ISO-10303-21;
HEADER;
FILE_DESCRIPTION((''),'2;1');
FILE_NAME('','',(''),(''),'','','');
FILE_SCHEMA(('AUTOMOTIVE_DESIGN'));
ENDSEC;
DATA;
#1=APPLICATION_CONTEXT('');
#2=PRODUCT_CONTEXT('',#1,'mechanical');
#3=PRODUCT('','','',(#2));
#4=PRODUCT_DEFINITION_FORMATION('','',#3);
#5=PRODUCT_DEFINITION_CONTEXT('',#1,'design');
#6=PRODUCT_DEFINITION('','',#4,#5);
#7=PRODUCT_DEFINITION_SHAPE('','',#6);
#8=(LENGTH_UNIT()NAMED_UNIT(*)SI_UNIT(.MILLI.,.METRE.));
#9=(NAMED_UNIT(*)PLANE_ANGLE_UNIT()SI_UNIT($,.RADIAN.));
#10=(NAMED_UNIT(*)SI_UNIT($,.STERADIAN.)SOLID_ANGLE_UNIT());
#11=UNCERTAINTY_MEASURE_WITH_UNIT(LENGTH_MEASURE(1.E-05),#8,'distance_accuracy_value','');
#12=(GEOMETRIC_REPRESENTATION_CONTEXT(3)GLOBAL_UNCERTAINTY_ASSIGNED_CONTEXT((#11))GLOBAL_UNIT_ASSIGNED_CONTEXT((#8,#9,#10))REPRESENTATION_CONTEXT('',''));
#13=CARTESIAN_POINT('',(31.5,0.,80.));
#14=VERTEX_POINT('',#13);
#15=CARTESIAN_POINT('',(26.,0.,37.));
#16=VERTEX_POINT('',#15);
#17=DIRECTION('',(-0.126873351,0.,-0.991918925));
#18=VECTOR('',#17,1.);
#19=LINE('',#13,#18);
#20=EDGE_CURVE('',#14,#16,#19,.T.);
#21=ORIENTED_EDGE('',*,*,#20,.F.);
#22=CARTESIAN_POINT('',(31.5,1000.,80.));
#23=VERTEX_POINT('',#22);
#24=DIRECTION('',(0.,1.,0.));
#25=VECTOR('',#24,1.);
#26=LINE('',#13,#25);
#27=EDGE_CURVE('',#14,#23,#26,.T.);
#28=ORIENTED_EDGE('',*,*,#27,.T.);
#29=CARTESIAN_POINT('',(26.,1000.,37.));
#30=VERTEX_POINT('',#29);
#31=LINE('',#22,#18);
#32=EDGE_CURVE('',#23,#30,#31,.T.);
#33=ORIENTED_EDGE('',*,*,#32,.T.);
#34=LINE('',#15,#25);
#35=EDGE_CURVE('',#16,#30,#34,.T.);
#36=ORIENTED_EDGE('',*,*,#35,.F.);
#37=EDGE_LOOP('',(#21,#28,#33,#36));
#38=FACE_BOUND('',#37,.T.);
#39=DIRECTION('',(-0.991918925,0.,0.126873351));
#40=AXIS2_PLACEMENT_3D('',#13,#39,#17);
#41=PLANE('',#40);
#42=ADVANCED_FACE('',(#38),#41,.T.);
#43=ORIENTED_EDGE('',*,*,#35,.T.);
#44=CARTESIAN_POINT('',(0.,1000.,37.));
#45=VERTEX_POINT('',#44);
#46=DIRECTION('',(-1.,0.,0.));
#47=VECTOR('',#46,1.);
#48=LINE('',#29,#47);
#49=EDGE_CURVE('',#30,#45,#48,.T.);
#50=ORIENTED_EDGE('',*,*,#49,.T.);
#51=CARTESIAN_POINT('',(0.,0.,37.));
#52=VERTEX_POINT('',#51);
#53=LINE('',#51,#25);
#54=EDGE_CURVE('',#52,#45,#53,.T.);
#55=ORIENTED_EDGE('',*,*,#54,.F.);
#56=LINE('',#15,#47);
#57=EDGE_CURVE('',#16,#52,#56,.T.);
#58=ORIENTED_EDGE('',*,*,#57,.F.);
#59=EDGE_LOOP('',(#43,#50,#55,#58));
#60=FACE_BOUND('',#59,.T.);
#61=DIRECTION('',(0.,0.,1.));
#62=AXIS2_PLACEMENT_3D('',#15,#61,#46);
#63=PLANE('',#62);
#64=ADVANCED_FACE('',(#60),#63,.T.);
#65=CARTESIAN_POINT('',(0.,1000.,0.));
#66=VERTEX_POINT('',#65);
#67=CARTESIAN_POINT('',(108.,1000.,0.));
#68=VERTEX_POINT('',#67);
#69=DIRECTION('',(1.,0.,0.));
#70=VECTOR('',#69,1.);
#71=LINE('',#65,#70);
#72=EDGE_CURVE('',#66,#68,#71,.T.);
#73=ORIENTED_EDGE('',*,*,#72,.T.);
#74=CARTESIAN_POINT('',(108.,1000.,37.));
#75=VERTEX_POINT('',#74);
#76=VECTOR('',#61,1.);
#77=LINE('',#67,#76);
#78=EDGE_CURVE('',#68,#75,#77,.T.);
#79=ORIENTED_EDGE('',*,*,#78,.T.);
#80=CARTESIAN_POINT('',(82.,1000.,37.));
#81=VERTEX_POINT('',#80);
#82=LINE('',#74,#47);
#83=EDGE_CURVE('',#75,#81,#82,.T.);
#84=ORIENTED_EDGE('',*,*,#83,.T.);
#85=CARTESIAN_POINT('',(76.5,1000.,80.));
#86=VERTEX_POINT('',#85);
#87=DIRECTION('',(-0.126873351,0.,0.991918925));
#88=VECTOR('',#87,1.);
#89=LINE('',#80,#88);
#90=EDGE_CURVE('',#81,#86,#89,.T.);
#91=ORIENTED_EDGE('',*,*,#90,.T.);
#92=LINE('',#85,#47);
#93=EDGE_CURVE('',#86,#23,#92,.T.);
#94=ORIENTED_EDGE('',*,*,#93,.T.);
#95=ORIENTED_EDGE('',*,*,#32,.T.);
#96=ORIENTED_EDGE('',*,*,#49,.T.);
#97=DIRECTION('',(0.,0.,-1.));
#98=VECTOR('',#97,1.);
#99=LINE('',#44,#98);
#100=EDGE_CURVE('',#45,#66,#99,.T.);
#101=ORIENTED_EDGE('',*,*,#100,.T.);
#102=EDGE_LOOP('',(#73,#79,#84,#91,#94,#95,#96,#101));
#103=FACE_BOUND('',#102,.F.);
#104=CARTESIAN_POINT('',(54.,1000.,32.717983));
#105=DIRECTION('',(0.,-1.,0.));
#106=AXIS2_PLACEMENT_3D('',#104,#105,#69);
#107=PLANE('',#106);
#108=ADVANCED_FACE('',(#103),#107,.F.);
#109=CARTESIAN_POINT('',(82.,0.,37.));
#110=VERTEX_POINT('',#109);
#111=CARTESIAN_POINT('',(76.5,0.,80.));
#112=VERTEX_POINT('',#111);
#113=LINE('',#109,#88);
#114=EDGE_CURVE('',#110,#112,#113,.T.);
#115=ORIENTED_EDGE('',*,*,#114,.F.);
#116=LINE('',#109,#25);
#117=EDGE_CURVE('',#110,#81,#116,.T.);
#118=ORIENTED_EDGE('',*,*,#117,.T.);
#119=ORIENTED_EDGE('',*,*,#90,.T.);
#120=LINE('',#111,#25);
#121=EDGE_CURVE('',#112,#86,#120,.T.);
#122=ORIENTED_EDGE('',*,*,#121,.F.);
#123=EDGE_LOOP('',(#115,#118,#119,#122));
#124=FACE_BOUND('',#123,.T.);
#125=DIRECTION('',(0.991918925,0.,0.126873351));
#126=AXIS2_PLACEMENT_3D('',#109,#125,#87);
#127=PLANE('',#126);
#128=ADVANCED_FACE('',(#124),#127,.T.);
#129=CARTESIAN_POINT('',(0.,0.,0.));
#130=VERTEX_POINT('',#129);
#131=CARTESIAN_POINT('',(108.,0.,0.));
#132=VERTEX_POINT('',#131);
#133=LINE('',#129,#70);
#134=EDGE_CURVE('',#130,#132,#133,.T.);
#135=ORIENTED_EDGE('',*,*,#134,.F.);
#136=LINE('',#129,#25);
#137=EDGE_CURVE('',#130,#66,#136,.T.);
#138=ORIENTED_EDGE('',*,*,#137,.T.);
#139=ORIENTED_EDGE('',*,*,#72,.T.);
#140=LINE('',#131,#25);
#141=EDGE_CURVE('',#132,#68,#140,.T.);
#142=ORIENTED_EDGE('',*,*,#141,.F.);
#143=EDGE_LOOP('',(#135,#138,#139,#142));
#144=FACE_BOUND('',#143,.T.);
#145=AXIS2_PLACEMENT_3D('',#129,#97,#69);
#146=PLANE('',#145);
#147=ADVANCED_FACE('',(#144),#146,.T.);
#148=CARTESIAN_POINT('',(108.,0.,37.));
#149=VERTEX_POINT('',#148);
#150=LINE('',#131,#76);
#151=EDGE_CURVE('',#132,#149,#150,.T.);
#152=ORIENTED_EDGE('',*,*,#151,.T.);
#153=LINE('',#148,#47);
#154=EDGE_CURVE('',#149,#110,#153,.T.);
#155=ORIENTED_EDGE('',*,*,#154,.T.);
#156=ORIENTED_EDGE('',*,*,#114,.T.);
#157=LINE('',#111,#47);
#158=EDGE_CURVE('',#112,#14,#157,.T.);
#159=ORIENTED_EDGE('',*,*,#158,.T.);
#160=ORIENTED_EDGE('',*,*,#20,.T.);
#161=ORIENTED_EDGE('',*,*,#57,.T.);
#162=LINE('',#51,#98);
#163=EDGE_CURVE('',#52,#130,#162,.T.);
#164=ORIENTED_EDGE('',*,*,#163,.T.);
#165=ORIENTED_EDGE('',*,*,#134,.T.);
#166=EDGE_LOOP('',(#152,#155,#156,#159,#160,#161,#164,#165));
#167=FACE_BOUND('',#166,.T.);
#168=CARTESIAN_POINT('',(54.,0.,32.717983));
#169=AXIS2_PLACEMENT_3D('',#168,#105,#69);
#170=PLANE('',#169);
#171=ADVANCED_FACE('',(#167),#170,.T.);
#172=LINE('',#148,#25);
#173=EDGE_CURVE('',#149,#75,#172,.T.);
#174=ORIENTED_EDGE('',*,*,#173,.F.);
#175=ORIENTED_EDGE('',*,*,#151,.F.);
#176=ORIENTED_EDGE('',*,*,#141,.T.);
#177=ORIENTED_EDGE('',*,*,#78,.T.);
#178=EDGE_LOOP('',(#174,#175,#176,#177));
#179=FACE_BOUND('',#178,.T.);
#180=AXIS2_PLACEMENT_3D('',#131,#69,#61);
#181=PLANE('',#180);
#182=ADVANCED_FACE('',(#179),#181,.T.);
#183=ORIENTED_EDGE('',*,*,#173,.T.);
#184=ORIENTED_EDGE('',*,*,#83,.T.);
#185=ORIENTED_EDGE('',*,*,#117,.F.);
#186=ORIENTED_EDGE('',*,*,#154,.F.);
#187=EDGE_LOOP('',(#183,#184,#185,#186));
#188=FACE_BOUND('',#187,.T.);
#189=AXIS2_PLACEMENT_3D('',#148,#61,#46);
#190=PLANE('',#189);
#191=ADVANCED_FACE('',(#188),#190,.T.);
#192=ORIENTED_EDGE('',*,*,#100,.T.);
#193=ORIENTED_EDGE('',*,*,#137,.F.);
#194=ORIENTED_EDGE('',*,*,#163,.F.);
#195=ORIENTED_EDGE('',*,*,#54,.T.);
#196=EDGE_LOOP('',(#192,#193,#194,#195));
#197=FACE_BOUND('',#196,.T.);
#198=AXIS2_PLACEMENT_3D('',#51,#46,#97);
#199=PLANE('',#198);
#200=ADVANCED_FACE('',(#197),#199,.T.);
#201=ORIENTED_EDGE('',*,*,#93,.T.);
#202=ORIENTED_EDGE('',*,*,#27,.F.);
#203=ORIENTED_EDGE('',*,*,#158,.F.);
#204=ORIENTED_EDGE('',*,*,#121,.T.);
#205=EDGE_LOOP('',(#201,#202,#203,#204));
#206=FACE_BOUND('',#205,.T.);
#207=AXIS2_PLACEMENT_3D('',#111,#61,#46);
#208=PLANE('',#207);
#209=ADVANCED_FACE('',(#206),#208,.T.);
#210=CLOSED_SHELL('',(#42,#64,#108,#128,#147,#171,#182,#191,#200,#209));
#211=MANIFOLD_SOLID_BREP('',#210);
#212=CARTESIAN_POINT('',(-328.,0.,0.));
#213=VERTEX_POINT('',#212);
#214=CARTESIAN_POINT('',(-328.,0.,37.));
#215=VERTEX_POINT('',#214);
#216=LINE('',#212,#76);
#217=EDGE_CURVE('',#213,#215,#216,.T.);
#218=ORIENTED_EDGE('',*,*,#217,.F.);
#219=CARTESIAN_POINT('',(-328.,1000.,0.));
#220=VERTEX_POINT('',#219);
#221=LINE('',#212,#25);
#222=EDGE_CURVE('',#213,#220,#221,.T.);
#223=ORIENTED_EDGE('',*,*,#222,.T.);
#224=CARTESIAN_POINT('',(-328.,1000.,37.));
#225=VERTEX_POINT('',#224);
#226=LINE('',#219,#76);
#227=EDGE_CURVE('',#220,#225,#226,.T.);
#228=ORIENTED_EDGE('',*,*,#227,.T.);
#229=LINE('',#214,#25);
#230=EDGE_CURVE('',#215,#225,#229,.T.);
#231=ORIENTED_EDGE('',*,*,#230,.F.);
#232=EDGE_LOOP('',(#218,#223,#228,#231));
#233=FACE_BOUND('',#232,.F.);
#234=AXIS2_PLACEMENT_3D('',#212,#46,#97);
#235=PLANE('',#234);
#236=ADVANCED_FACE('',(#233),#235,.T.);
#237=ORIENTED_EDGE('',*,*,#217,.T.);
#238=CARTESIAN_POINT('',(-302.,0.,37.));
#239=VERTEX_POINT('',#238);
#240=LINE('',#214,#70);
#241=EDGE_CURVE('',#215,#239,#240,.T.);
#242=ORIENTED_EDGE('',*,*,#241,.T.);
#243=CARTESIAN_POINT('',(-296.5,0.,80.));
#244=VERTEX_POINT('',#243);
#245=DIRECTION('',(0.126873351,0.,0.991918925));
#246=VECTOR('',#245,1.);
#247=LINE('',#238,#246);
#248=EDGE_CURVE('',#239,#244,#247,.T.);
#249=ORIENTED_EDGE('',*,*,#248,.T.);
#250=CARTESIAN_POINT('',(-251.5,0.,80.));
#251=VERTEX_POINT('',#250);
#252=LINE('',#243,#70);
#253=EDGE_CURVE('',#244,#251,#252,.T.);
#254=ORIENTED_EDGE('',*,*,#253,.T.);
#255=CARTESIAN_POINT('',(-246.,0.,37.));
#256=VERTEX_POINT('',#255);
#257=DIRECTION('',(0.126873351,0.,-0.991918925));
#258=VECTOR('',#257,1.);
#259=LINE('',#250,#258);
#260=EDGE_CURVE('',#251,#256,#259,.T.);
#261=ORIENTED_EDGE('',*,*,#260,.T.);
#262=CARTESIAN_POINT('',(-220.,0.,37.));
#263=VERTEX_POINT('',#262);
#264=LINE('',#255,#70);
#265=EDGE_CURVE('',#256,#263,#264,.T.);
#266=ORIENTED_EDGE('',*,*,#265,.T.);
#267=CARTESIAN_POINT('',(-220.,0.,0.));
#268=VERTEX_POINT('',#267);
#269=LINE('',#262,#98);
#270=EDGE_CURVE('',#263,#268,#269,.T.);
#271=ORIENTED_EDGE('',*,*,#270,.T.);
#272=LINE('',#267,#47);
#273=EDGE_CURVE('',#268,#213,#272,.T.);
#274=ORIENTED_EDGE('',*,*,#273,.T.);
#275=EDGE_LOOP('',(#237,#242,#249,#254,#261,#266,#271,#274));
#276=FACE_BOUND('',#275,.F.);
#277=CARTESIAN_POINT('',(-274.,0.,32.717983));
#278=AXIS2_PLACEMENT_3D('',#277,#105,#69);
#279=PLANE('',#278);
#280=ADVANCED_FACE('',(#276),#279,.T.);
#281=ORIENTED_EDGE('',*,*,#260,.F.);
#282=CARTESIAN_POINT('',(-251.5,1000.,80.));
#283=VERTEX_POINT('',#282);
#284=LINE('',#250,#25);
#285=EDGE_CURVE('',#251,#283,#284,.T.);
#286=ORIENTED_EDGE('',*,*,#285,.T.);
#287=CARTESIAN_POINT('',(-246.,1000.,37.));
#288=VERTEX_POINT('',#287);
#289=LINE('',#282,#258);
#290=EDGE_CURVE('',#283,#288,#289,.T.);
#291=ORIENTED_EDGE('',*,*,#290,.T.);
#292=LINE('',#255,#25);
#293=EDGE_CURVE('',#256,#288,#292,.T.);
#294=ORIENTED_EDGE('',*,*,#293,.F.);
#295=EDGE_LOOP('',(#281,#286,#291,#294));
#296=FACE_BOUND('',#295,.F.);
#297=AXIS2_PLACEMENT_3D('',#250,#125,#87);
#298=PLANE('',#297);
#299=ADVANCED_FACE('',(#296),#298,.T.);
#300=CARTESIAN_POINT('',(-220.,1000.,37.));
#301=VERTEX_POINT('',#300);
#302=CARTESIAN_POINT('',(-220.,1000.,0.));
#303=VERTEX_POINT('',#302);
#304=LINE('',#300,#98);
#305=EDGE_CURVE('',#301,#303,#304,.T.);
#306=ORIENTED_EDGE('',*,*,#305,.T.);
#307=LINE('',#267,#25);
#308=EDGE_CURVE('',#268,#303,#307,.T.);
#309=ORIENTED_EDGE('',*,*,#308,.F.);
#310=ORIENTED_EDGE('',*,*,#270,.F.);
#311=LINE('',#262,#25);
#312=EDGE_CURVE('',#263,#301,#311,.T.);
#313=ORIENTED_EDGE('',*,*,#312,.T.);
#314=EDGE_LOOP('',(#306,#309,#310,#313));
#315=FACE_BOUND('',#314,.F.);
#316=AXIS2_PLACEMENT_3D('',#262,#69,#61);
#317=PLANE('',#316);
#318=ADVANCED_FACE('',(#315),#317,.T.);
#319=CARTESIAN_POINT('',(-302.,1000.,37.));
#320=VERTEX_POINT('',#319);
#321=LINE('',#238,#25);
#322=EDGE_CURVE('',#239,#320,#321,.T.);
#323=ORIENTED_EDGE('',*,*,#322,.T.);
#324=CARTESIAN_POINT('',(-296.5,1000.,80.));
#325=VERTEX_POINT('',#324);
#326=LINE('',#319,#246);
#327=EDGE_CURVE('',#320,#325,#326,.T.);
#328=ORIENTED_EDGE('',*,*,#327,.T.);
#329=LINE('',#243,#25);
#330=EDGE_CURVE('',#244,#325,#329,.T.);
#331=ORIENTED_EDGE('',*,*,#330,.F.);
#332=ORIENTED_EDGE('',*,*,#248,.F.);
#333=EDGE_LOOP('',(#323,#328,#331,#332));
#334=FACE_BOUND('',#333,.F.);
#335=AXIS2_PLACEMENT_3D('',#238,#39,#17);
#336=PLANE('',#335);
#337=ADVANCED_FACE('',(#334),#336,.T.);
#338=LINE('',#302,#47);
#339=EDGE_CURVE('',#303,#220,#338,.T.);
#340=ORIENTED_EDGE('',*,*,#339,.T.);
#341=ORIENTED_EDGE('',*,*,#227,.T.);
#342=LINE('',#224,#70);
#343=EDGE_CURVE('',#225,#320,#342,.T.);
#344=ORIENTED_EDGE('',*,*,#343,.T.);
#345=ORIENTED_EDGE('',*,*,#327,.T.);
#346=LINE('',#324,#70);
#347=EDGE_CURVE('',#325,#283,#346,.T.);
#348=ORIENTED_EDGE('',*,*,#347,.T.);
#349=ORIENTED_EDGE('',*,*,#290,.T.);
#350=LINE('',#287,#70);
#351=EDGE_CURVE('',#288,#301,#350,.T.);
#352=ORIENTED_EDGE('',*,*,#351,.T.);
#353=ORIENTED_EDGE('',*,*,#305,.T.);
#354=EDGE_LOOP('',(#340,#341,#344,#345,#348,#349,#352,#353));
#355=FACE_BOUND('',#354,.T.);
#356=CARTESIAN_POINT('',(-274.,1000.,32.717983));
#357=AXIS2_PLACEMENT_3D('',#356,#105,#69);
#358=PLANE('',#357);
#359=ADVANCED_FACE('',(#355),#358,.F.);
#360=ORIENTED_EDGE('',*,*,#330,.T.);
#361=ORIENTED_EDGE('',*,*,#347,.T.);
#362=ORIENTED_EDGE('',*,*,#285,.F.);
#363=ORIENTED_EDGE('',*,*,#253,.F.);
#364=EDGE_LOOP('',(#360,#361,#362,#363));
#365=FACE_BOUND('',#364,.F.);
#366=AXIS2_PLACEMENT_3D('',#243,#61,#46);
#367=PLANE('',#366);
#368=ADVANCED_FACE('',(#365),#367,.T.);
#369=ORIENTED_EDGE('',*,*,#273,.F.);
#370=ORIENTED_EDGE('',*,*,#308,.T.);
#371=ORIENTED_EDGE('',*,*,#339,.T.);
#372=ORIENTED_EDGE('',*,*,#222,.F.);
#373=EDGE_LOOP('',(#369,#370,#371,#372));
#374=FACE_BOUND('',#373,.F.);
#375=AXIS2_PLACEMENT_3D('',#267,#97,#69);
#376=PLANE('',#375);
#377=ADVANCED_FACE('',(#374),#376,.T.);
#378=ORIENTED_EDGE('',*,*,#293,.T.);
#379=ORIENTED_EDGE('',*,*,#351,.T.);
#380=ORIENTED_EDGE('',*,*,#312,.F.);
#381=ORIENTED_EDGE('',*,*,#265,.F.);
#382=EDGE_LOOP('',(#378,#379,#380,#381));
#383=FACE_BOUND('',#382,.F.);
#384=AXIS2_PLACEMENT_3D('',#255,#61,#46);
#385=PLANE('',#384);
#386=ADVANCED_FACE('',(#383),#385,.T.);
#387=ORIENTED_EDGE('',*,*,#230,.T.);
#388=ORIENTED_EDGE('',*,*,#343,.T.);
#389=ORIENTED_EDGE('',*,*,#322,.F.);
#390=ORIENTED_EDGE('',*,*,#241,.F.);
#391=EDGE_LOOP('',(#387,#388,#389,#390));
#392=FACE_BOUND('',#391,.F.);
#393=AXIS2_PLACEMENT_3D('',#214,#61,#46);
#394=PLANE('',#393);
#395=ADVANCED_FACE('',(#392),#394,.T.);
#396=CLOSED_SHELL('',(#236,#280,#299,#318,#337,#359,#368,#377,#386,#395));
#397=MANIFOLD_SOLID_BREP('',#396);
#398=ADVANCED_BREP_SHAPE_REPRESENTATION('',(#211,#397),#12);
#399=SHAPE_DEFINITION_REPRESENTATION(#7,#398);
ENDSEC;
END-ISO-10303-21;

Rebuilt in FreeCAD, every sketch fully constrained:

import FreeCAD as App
import Part
import Sketcher

V = App.Vector


def add_polygon(sketch, points):
    """Adds a closed chain of lines whose ends are joined by coincident constraints."""
    first, n = sketch.GeometryCount, len(points)
    for a, b in zip(points, points[1:] + points[:1]):
        sketch.addGeometry(Part.LineSegment(App.Vector(*a, 0), App.Vector(*b, 0)), False)
    for i in range(n):
        sketch.addConstraint(Sketcher.Constraint("Coincident", first + i, 2, first + (i + 1) % n, 1))

doc = App.newDocument("Part")
body = doc.addObject("PartDesign::Body", "Body")

sketch1 = body.newObject("Sketcher::SketchObject", "Sketch")
sketch1.AttachmentSupport = (doc.getObject("XZ_Plane"), [""])
sketch1.MapMode = "FlatFace"
add_polygon(sketch1, [(0, 37), (0, 0), (108, 0), (108, 37), (82, 37), (76, 80), (32, 80), (26, 37)])
sketch1.addConstraint([
    Sketcher.Constraint("Vertical", 0),
    Sketcher.Constraint("Horizontal", 1),
    Sketcher.Constraint("Vertical", 2),
    Sketcher.Constraint("Horizontal", 3),
    Sketcher.Constraint("Horizontal", 5),
    Sketcher.Constraint("Horizontal", 7),
    Sketcher.Constraint("Coincident", 0, 2, -1, 1),
    Sketcher.Constraint("Horizontal", 3, 2, 6, 2),
    Sketcher.Constraint("Equal", 3, 7),
    Sketcher.Constraint("Equal", 4, 6),
    Sketcher.Constraint("DistanceX", 1, 1, 1, 2, 108.0),
    Sketcher.Constraint("DistanceX", 3, 2, 3, 1, 26.0),
    Sketcher.Constraint("DistanceX", 5, 2, 5, 1, 45.0),
    Sketcher.Constraint("DistanceY", 0, 2, 0, 1, 37.0),
    Sketcher.Constraint("DistanceY", -1, 1, 4, 2, 80.0),
])
pad1 = body.newObject("PartDesign::Pad", "Pad")
pad1.Profile = sketch1
pad1.Length = 1000
pad1.Reversed = True
body2 = doc.addObject("PartDesign::Body", "Body001")
doc.recompute()

mirroring = doc.addObject("Part::Mirroring", "Mirroring")
mirroring.Source = body
mirroring.Base = V(-110, 0, 0)
mirroring.Normal = V(1, 0, 0)
body2.BaseFeature = mirroring
doc.recompute()
mirroring.Visibility = False

doc.recompute()
